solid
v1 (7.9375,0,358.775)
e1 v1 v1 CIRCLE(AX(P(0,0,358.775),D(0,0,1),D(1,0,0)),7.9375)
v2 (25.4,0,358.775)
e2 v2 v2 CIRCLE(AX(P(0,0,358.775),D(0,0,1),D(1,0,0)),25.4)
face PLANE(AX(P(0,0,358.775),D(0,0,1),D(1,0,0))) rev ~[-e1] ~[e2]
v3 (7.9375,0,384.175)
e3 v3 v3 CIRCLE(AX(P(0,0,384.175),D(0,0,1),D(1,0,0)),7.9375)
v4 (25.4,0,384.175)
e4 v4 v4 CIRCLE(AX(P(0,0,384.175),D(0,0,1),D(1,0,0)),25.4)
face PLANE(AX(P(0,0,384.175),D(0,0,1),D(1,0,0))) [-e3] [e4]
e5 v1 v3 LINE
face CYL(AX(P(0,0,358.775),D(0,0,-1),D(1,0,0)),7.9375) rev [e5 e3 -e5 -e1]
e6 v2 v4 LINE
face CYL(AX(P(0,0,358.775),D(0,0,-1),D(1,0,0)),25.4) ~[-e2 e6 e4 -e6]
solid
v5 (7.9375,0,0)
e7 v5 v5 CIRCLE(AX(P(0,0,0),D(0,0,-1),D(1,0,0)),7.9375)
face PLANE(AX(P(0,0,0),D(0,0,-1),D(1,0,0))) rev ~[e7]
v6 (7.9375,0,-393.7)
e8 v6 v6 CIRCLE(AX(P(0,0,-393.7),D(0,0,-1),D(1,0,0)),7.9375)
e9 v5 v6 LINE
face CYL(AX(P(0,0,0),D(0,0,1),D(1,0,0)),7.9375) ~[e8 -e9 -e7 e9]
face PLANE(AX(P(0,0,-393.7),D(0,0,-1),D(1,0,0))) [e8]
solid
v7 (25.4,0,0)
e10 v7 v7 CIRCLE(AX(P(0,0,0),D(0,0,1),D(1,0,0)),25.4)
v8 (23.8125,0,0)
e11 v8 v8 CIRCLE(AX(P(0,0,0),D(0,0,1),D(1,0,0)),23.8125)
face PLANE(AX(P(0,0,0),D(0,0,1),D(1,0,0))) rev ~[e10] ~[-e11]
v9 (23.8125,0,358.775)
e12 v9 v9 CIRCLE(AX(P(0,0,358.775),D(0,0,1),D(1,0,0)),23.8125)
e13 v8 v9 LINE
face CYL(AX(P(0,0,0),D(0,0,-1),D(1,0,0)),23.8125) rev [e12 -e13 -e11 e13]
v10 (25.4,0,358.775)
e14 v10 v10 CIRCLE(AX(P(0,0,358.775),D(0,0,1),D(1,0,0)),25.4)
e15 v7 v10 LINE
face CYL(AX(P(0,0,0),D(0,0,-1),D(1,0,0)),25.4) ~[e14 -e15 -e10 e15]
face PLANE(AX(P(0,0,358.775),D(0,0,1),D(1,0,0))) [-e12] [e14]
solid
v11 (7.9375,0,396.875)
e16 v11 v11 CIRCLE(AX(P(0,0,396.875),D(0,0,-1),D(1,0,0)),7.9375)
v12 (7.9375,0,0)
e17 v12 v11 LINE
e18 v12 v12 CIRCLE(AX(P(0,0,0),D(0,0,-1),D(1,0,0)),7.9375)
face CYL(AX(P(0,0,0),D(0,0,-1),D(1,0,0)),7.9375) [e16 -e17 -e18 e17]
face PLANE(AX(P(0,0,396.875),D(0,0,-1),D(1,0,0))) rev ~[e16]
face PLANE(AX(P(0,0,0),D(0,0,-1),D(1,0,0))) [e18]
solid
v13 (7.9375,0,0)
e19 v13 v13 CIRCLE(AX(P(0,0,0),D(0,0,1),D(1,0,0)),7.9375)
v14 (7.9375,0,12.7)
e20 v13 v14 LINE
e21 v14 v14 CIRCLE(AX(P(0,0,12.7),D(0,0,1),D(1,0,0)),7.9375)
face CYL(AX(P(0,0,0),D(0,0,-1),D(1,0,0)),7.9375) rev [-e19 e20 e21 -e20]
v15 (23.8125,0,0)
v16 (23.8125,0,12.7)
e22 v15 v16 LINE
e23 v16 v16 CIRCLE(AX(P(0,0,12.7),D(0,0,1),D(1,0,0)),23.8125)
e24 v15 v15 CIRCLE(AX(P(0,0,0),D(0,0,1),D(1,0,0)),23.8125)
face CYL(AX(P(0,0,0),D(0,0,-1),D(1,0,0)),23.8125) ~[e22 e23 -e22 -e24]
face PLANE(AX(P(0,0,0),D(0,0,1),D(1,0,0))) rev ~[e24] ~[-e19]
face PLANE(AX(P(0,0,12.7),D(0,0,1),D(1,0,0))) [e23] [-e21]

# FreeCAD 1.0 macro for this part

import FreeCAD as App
import Part
import Sketcher
Q = App.Units.Quantity

doc = App.newDocument("Part")
body = doc.addObject("PartDesign::Body", "Body")

# Sketch on XY plane
sketch1 = body.newObject("Sketcher::SketchObject", "Sketch")
sketch1.AttachmentSupport = (doc.getObject("XY_Plane"), [""])
sketch1.MapMode = "FlatFace"
sketch1.addGeometry(Part.Circle(App.Vector(0, 0, 0), App.Vector(0, 0, 1), 25.4), False)
sketch1.addGeometry(Part.Circle(App.Vector(0, 0, 0), App.Vector(0, 0, 1), 23.8125), False)
sketch1.addConstraint(Sketcher.Constraint("Coincident", 0, 3, -1, 1))
sketch1.addConstraint(Sketcher.Constraint("Coincident", 1, 3, -1, 1))
sketch1.addConstraint(Sketcher.Constraint("Diameter", 0, Q("2 in")))
sketch1.addConstraint(Sketcher.Constraint("Diameter", 1, Q("1.875 in")))
pad1 = body.newObject("PartDesign::Pad", "Pad")
pad1.Profile = sketch1
pad1.Length = Q("14.125 in")
body2 = doc.addObject("PartDesign::Body", "Body001")

# Sketch on XY plane
sketch2 = body2.newObject("Sketcher::SketchObject", "Sketch001")
sketch2.AttachmentSupport = (doc.getObject("XY_Plane001"), [""])
sketch2.MapMode = "FlatFace"
sketch2.AttachmentOffset = App.Placement(App.Vector(0, 0, 14.125 * 25.4), App.Rotation())
sketch2.addGeometry(Part.Circle(App.Vector(0, 0, 0), App.Vector(0, 0, 1), 25.4), False)
sketch2.addGeometry(Part.Circle(App.Vector(0, 0, 0), App.Vector(0, 0, 1), 7.9375), False)
sketch2.addConstraint(Sketcher.Constraint("Coincident", 0, 3, -1, 1))
sketch2.addConstraint(Sketcher.Constraint("Coincident", 1, 3, -1, 1))
sketch2.addConstraint(Sketcher.Constraint("Diameter", 0, Q("2 in")))
sketch2.addConstraint(Sketcher.Constraint("Diameter", 1, Q("0.625 in")))
pad2 = body2.newObject("PartDesign::Pad", "Pad001")
pad2.Profile = sketch2
pad2.Length = Q("1 in")
body3 = doc.addObject("PartDesign::Body", "Body002")

# Sketch on XY plane
sketch3 = body3.newObject("Sketcher::SketchObject", "Sketch002")
sketch3.AttachmentSupport = (doc.getObject("XY_Plane002"), [""])
sketch3.MapMode = "FlatFace"
sketch3.addGeometry(Part.Circle(App.Vector(0, 0, 0), App.Vector(0, 0, 1), 23.8125), False)
sketch3.addGeometry(Part.Circle(App.Vector(0, 0, 0), App.Vector(0, 0, 1), 7.9375), False)
sketch3.addConstraint(Sketcher.Constraint("Coincident", 0, 3, -1, 1))
sketch3.addConstraint(Sketcher.Constraint("Coincident", 1, 3, -1, 1))
sketch3.addConstraint(Sketcher.Constraint("Diameter", 0, Q("1.875 in")))
sketch3.addConstraint(Sketcher.Constraint("Diameter", 1, Q("0.625 in")))
pad3 = body3.newObject("PartDesign::Pad", "Pad002")
pad3.Profile = sketch3
pad3.Length = Q("0.5 in")
body4 = doc.addObject("PartDesign::Body", "Body003")

# Sketch on XY plane
sketch4 = body4.newObject("Sketcher::SketchObject", "Sketch003")
sketch4.AttachmentSupport = (doc.getObject("XY_Plane003"), [""])
sketch4.MapMode = "FlatFace"
sketch4.addGeometry(Part.Circle(App.Vector(0, 0, 0), App.Vector(0, 0, 1), 7.9375), False)
sketch4.addConstraint(Sketcher.Constraint("Coincident", 0, 3, -1, 1))
sketch4.addConstraint(Sketcher.Constraint("Diameter", 0, Q("0.625 in")))
pad4 = body4.newObject("PartDesign::Pad", "Pad003")
pad4.Profile = sketch4
pad4.Length = Q("15.625 in")
body5 = doc.addObject("PartDesign::Body", "Body004")

# Sketch on XY plane
sketch5 = body5.newObject("Sketcher::SketchObject", "Sketch004")
sketch5.AttachmentSupport = (doc.getObject("XY_Plane004"), [""])
sketch5.MapMode = "FlatFace"
sketch5.addGeometry(Part.Circle(App.Vector(0, 0, 0), App.Vector(0, 0, 1), 7.9375), False)
sketch5.addConstraint(Sketcher.Constraint("Coincident", 0, 3, -1, 1))
sketch5.addConstraint(Sketcher.Constraint("Diameter", 0, Q("0.625 in")))
pad5 = body5.newObject("PartDesign::Pad", "Pad004")
pad5.Profile = sketch5
pad5.Length = Q("15.5 in")
pad5.Reversed = True

doc.recompute()
